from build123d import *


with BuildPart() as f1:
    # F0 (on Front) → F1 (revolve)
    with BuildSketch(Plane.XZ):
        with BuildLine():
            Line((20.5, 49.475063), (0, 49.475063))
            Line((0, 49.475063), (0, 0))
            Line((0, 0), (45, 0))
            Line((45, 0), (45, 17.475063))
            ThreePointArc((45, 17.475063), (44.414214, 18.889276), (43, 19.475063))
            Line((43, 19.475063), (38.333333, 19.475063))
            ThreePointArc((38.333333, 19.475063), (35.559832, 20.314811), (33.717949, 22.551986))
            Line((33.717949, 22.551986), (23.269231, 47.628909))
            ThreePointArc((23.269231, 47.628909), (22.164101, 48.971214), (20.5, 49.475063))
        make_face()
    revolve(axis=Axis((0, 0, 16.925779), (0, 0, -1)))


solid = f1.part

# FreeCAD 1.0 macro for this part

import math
import FreeCAD as App
import Part
import Sketcher
from FreeCAD import Vector

doc = App.newDocument("Part")
params = doc.addObject("Spreadsheet::Sheet", "Params")
for row, (alias, value) in enumerate([
    ("sketch1_radius", "2 mm"),
    ("sketch1_radius2", "2.999999 mm"),
    ("sketch1_width", "45 mm"),
    ("sketch1_width2", "20.5 mm"),
    ("revolution_angle", "360 deg"),
], start=1):
    params.set(f"A{row}", alias)
    params.set(f"B{row}", "=" + value)
    params.setAlias(f"B{row}", alias)

body = doc.addObject("PartDesign::Body", "Body")

# Sketch on XZ plane
sketch1 = body.newObject("Sketcher::SketchObject", "Sketch")
sketch1.AttachmentSupport = (doc.getObject("XZ_Plane"), [""])
sketch1.MapMode = "FlatFace"
sketch1.addGeometry(Part.LineSegment(Vector(20.5, 49.5, 0), Vector(0, 49.5, 0)), False)
sketch1.addGeometry(Part.LineSegment(Vector(0, 49.5, 0), Vector(0, 0, 0)), False)
sketch1.addGeometry(Part.LineSegment(Vector(0, 0, 0), Vector(45, 0, 0)), False)
sketch1.addGeometry(Part.LineSegment(Vector(45, 0, 0), Vector(45, 17.5, 0)), False)
sketch1.addGeometry(Part.ArcOfCircle(Part.Circle(Vector(43, 17.5, 0), Vector(0, 0, 1), 2), math.radians(0), math.radians(90)), False)
sketch1.addGeometry(Part.LineSegment(Vector(43, 19.5, 0), Vector(38.3, 19.5, 0)), False)
sketch1.addGeometry(Part.ArcOfCircle(Part.Circle(Vector(38.3, 24.5, 0), Vector(0, 0, 1), 5), math.radians(-157), math.radians(-90)), False)
sketch1.addGeometry(Part.LineSegment(Vector(33.7, 22.6, 0), Vector(23.3, 47.6, 0)), False)
sketch1.addGeometry(Part.ArcOfCircle(Part.Circle(Vector(20.5, 46.5, 0), Vector(0, 0, 1), 3), math.radians(23), math.radians(90)), False)
sketch1.addConstraint(Sketcher.Constraint("Coincident", 0, 2, 1, 1))
sketch1.addConstraint(Sketcher.Constraint("Coincident", 1, 2, 2, 1))
sketch1.addConstraint(Sketcher.Constraint("Coincident", 2, 2, 3, 1))
sketch1.addConstraint(Sketcher.Constraint("Tangent", 3, 2, 4, 1))
sketch1.addConstraint(Sketcher.Constraint("Tangent", 4, 2, 5, 1))
sketch1.addConstraint(Sketcher.Constraint("Tangent", 5, 2, 6, 2))
sketch1.addConstraint(Sketcher.Constraint("Tangent", 6, 1, 7, 1))
sketch1.addConstraint(Sketcher.Constraint("Tangent", 7, 2, 8, 1))
sketch1.addConstraint(Sketcher.Constraint("Tangent", 8, 2, 0, 1))
sketch1.addConstraint(Sketcher.Constraint("Horizontal", 0))
sketch1.addConstraint(Sketcher.Constraint("Vertical", 1))
sketch1.addConstraint(Sketcher.Constraint("Horizontal", 2))
sketch1.addConstraint(Sketcher.Constraint("Vertical", 3))
sketch1.addConstraint(Sketcher.Constraint("Horizontal", 5))
sketch1.addConstraint(Sketcher.Constraint("Coincident", 1, 2, -1, 1))
sketch1.addConstraint(Sketcher.Constraint("Radius", 4, 2.0))
sketch1.addConstraint(Sketcher.Constraint("Radius", 8, 2.999999))
sketch1.addConstraint(Sketcher.Constraint("DistanceX", 2, 1, 2, 2, 45.0))
sketch1.addConstraint(Sketcher.Constraint("DistanceX", 0, 2, 0, 1, 20.5))
sketch1.addConstraint(Sketcher.Constraint("DistanceY", 4, 3, 8, 3, 29.000001))
sketch1.addConstraint(Sketcher.Constraint("Radius", 6, 4.999996))
sketch1.addConstraint(Sketcher.Constraint("DistanceX", 7, 2, 6, 3, 15.0641))
sketch1.addConstraint(Sketcher.Constraint("DistanceY", 1, 2, 1, 1, 49.475063))
sketch1.setExpression("Constraints[15]", "Params.sketch1_radius")
sketch1.setExpression("Constraints[16]", "Params.sketch1_radius2")
sketch1.setExpression("Constraints[17]", "Params.sketch1_width")
sketch1.setExpression("Constraints[18]", "Params.sketch1_width2")
revolution = body.newObject("PartDesign::Revolution", "Revolution")
revolution.Profile = sketch1
revolution.ReferenceAxis = (sketch1, ["V_Axis"])
revolution.setExpression("Angle", "Params.revolution_angle")

doc.recompute()
